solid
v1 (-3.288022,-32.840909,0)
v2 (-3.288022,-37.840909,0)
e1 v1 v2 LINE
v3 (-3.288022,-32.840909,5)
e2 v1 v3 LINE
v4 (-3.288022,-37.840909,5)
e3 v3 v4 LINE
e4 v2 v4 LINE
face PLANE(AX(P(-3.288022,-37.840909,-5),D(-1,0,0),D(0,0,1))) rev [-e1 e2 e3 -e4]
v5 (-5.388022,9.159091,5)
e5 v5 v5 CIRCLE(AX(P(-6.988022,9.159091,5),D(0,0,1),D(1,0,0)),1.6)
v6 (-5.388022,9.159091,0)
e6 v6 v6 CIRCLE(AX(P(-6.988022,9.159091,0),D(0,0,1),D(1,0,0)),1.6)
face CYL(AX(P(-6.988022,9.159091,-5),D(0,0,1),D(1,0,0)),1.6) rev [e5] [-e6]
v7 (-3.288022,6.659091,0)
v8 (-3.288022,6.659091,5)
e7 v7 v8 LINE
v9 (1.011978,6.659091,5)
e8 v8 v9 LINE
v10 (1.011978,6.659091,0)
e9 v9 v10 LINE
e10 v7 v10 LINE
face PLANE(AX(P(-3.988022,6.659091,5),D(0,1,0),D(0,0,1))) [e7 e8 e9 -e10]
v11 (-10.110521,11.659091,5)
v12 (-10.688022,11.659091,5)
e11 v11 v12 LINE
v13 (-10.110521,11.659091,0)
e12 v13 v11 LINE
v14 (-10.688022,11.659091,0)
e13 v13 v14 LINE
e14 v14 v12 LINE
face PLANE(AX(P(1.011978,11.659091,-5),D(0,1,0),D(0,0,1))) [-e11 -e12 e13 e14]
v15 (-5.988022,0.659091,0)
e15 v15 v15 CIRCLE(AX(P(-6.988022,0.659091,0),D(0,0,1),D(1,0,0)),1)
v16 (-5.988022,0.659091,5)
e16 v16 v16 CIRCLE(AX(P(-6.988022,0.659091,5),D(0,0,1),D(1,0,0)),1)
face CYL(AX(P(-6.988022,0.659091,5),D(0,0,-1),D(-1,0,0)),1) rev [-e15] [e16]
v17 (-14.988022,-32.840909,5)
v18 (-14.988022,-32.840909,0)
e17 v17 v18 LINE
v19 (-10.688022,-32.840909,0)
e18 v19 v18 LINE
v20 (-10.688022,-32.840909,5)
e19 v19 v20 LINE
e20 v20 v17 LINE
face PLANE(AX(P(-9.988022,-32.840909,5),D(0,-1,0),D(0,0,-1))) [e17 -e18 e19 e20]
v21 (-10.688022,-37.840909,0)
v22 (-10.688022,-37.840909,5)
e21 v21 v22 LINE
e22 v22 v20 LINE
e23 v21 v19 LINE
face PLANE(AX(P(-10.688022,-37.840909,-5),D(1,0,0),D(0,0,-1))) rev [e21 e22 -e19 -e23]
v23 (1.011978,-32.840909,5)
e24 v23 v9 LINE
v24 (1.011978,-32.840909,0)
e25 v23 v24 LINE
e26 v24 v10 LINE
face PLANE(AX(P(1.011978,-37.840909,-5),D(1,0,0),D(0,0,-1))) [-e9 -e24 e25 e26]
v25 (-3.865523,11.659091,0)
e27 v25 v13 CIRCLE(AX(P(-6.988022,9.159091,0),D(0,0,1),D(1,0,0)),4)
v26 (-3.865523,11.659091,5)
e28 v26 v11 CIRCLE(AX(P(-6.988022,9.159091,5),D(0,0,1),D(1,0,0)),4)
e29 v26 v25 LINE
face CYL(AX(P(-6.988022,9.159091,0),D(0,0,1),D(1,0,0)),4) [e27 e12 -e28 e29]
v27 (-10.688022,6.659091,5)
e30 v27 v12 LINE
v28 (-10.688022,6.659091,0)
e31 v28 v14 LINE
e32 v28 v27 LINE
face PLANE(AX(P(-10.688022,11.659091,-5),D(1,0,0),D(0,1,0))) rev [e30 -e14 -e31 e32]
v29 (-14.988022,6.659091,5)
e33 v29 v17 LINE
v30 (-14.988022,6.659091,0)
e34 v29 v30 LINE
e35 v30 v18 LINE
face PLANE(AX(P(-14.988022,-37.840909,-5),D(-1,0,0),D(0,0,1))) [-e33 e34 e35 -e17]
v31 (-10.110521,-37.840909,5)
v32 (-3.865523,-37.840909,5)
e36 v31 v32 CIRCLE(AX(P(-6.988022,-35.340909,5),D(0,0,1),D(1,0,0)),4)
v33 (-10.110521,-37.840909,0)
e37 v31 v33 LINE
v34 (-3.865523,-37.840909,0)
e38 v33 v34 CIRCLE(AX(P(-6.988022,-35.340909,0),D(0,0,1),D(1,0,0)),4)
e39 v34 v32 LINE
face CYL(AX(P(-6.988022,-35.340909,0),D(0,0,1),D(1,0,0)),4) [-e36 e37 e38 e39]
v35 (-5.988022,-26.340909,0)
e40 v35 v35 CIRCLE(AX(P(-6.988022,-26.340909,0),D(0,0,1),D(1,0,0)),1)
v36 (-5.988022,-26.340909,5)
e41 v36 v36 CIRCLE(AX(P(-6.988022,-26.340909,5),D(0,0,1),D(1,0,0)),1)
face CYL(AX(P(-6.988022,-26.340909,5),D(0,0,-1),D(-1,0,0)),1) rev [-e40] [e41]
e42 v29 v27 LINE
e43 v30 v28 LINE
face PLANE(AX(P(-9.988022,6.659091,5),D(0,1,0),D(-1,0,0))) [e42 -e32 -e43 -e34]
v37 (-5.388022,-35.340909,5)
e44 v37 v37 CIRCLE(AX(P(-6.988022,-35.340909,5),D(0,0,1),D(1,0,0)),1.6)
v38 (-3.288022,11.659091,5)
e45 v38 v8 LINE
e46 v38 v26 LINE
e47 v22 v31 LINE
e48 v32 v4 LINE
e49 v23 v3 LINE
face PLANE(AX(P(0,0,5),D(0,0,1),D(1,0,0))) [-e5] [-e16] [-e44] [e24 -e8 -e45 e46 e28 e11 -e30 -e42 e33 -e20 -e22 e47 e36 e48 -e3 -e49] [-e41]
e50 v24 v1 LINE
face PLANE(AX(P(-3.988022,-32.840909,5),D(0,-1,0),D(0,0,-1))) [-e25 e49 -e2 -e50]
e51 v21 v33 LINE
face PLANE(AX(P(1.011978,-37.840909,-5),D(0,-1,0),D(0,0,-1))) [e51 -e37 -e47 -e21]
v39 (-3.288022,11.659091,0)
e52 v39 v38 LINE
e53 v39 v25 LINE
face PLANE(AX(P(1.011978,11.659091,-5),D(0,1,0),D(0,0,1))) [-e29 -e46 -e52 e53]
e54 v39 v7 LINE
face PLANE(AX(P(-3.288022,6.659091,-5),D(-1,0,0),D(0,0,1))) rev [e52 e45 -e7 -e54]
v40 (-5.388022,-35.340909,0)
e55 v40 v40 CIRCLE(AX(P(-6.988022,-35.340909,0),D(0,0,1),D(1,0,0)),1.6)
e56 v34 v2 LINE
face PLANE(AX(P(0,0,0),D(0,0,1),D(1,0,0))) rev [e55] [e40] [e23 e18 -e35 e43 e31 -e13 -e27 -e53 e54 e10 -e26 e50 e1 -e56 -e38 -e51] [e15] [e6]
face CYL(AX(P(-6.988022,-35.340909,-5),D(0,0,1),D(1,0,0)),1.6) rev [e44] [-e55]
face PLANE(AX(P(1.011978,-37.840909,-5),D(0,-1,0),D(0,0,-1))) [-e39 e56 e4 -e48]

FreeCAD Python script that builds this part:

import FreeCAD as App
import Part
import Sketcher


def add_polygon(sketch, points):
    """Adds a closed chain of lines whose ends are joined by coincident constraints."""
    first, n = sketch.GeometryCount, len(points)
    for a, b in zip(points, points[1:] + points[:1]):
        sketch.addGeometry(Part.LineSegment(App.Vector(*a, 0), App.Vector(*b, 0)), False)
    for i in range(n):
        sketch.addConstraint(Sketcher.Constraint("Coincident", first + i, 2, first + (i + 1) % n, 1))

doc = App.newDocument("Part")
body = doc.addObject("PartDesign::Body", "Body")

# Sketch on XY plane
sketch1 = body.newObject("Sketcher::SketchObject", "Sketch")
sketch1.AttachmentSupport = (doc.getObject("XY_Plane"), [""])
sketch1.MapMode = "FlatFace"
add_polygon(sketch1, [(-18, 14.7), (-18, -40.8), (4, -40.8), (4, 14.7)])  # lines 0-3
add_polygon(sketch1, [(-10, -37.8), (-15, -37.8), (-15, -32.8), (-10, -32.8)])  # lines 4-7
sketch1.addGeometry(Part.Circle(App.Vector(-7, -26.3, 0), App.Vector(0, 0, 1), 1), False)  # 8
add_polygon(sketch1, [(1, -37.8), (-4, -37.8), (-4, -32.8), (1, -32.8)])  # lines 9-12
add_polygon(sketch1, [(-10, 6.7), (-15, 6.7), (-15, 11.7), (-10, 11.7)])  # lines 13-16
sketch1.addGeometry(Part.Circle(App.Vector(-7, 0.7, 0), App.Vector(0, 0, 1), 1), False)  # 17
add_polygon(sketch1, [(1, 6.7), (-4, 6.7), (-4, 11.7), (1, 11.7)])  # lines 18-21
sketch1.addConstraint([
    Sketcher.Constraint("Vertical", 0),
    Sketcher.Constraint("Horizontal", 1),
    Sketcher.Constraint("Vertical", 2),
    Sketcher.Constraint("Horizontal", 3),
    Sketcher.Constraint("Horizontal", 4),
    Sketcher.Constraint("Vertical", 5),
    Sketcher.Constraint("Horizontal", 6),
    Sketcher.Constraint("Vertical", 7),
    Sketcher.Constraint("Horizontal", 9),
    Sketcher.Constraint("Vertical", 10),
    Sketcher.Constraint("Horizontal", 11),
    Sketcher.Constraint("Vertical", 12),
    Sketcher.Constraint("Horizontal", 13),
    Sketcher.Constraint("Vertical", 14),
    Sketcher.Constraint("Horizontal", 15),
    Sketcher.Constraint("Vertical", 16),
    Sketcher.Constraint("Horizontal", 18),
    Sketcher.Constraint("Vertical", 19),
    Sketcher.Constraint("Horizontal", 20),
    Sketcher.Constraint("Vertical", 21),
    Sketcher.Constraint("Equal", 8, 17),
    Sketcher.Constraint("Horizontal", 7, 2, 9, 2),
    Sketcher.Constraint("Horizontal", 6, 2, 10, 2),
    Sketcher.Constraint("Horizontal", 16, 2, 18, 2),
    Sketcher.Constraint("Horizontal", 15, 2, 19, 2),
    Sketcher.Constraint("Vertical", 8, 3, 17, 3),
    Sketcher.Constraint("Vertical", 5, 2, 13, 2),
    Sketcher.Constraint("Vertical", 7, 2, 15, 2),
    Sketcher.Constraint("Vertical", 10, 2, 18, 2),
    Sketcher.Constraint("Vertical", 12, 2, 20, 2),
    Sketcher.Constraint("Equal", 6, 9),
    Sketcher.Constraint("Equal", 20, 5),
    Sketcher.Constraint("Equal", 12, 14),
    Sketcher.Constraint("Diameter", 8, 2.0),
    Sketcher.Constraint("DistanceX", 1, 1, 1, 2, 22.0),
    Sketcher.Constraint("DistanceX", 4, 2, 4, 1, 5.0),
    Sketcher.Constraint("DistanceY", 0, 2, 0, 1, 55.5),
    Sketcher.Constraint("DistanceY", 8, 3, 17, 3, 27.0),
    Sketcher.Constraint("DistanceX", 0, 2, 8, 3, 11.0),
    Sketcher.Constraint("DistanceY", 17, 3, 2, 2, 14.0),
    Sketcher.Constraint("DistanceX", 0, 2, 4, 2, 3.0),
    Sketcher.Constraint("DistanceY", 0, 2, 4, 2, 3.0),
    Sketcher.Constraint("DistanceX", 7, 2, 9, 2, 6.0),
    Sketcher.Constraint("DistanceY", 13, 2, 3, 2, 8.0),
    Sketcher.Constraint("DistanceY", 8, 3, -1, 1, 26.340909),
    Sketcher.Constraint("DistanceX", 8, 3, -1, 1, 6.988022),
])
pad1 = body.newObject("PartDesign::Pad", "Pad")
pad1.Profile = sketch1
pad1.Length = 5

# Sketch on XY plane
sketch2 = body.newObject("Sketcher::SketchObject", "Sketch001")
sketch2.AttachmentSupport = (doc.getObject("XY_Plane"), [""])
sketch2.MapMode = "FlatFace"
sketch2.AttachmentOffset = App.Placement(App.Vector(0, 0, 5), App.Rotation())
add_polygon(sketch2, [(-18, 15), (-18, -41), (4, -41), (4, 15)])  # lines 0-3
add_polygon(sketch2, [(1, -38), (-15, -38), (-15, 12), (1, 12)])  # lines 4-7
sketch2.addConstraint([
    Sketcher.Constraint("Vertical", 0),
    Sketcher.Constraint("Horizontal", 1),
    Sketcher.Constraint("Vertical", 2),
    Sketcher.Constraint("Horizontal", 3),
    Sketcher.Constraint("Horizontal", 4),
    Sketcher.Constraint("Vertical", 5),
    Sketcher.Constraint("Horizontal", 6),
    Sketcher.Constraint("Vertical", 7),
    Sketcher.Constraint("DistanceX", 1, 1, 1, 2, 22.0),
    Sketcher.Constraint("DistanceX", 4, 2, 4, 1, 16.0),
    Sketcher.Constraint("DistanceY", 0, 2, 0, 1, 55.5),
    Sketcher.Constraint("DistanceY", 5, 1, 5, 2, 49.5),
    Sketcher.Constraint("DistanceX", 0, 2, 4, 2, 3.0),
    Sketcher.Constraint("DistanceY", 0, 2, 4, 2, 3.0),
    Sketcher.Constraint("DistanceY", 0, 2, -1, 1, 40.840909),
    Sketcher.Constraint("DistanceX", 0, 2, -1, 1, 17.988022),
])
pocket1 = body.newObject("PartDesign::Pocket", "Pocket")
pocket1.Profile = sketch2
pocket1.Length = 10

# Sketch on XY plane
sketch3 = body.newObject("Sketcher::SketchObject", "Sketch002")
sketch3.AttachmentSupport = (doc.getObject("XY_Plane"), [""])
sketch3.MapMode = "FlatFace"
sketch3.AttachmentOffset = App.Placement(App.Vector(0, 0, 5), App.Rotation())
add_polygon(sketch3, [(-4, -32.8), (-4, -37.8), (-3, -37.8), (-3, -32.8)])  # lines 0-3
add_polygon(sketch3, [(-11, -32.8), (-11, -37.8), (-10, -37.8), (-10, -32.8)])  # lines 4-7
add_polygon(sketch3, [(-4, 11.7), (-4, 6.7), (-3, 6.7), (-3, 11.7)])  # lines 8-11
add_polygon(sketch3, [(-11, 11.7), (-11, 6.7), (-10, 6.7), (-10, 11.7)])  # lines 12-15
sketch3.addConstraint([
    Sketcher.Constraint("Vertical", 0),
    Sketcher.Constraint("Horizontal", 1),
    Sketcher.Constraint("Vertical", 2),
    Sketcher.Constraint("Horizontal", 3),
    Sketcher.Constraint("Vertical", 4),
    Sketcher.Constraint("Horizontal", 5),
    Sketcher.Constraint("Vertical", 6),
    Sketcher.Constraint("Horizontal", 7),
    Sketcher.Constraint("Vertical", 8),
    Sketcher.Constraint("Horizontal", 9),
    Sketcher.Constraint("Vertical", 10),
    Sketcher.Constraint("Horizontal", 11),
    Sketcher.Constraint("Vertical", 12),
    Sketcher.Constraint("Horizontal", 13),
    Sketcher.Constraint("Vertical", 14),
    Sketcher.Constraint("Horizontal", 15),
    Sketcher.Constraint("Horizontal", 1, 2, 4, 2),
    Sketcher.Constraint("Horizontal", 3, 2, 6, 2),
    Sketcher.Constraint("Horizontal", 9, 2, 12, 2),
    Sketcher.Constraint("Horizontal", 11, 2, 14, 2),
    Sketcher.Constraint("Vertical", 3, 2, 8, 2),
    Sketcher.Constraint("Vertical", 2, 2, 9, 2),
    Sketcher.Constraint("Vertical", 7, 2, 12, 2),
    Sketcher.Constraint("Vertical", 6, 2, 13, 2),
    Sketcher.Constraint("Equal", 3, 5),
    Sketcher.Constraint("Equal", 6, 8),
    Sketcher.Constraint("DistanceX", 1, 1, 1, 2, 1.0),
    Sketcher.Constraint("DistanceY", 0, 2, 0, 1, 5.0),
    Sketcher.Constraint("DistanceX", 4, 2, 0, 2, 7.0),
    Sketcher.Constraint("DistanceY", 3, 2, 8, 2, 39.5),
    Sketcher.Constraint("DistanceY", 0, 2, -1, 1, 37.840909),
    Sketcher.Constraint("DistanceX", 0, 2, -1, 1, 3.988022),
])
pad2 = body.newObject("PartDesign::Pad", "Pad001")
pad2.Profile = sketch3
pad2.Length = 5
pad2.Reversed = True

# Sketch on XY plane
sketch4 = body.newObject("Sketcher::SketchObject", "Sketch003")
sketch4.AttachmentSupport = (doc.getObject("XY_Plane"), [""])
sketch4.MapMode = "FlatFace"
sketch4.AttachmentOffset = App.Placement(App.Vector(0, 0, 5), App.Rotation())
sketch4.addGeometry([
    Part.Circle(App.Vector(-7, -35.3, 0), App.Vector(0, 0, 1), 1.6),
    Part.Circle(App.Vector(-7, 9.2, 0), App.Vector(0, 0, 1), 1.6),
], False)
sketch4.addConstraint([
    Sketcher.Constraint("Equal", 0, 1),
    Sketcher.Constraint("Vertical", 0, 3, 1, 3),
    Sketcher.Constraint("Diameter", 0, 3.2),
    Sketcher.Constraint("DistanceY", 0, 3, 1, 3, 44.5),
    Sketcher.Constraint("DistanceY", 0, 3, -1, 1, 35.340909),
    Sketcher.Constraint("DistanceX", 0, 3, -1, 1, 6.988022),
])
pocket2 = body.newObject("PartDesign::Pocket", "Pocket001")
pocket2.Profile = sketch4
pocket2.Length = 10

# Sketch on XY plane
sketch5 = body.newObject("Sketcher::SketchObject", "Sketch004")
sketch5.AttachmentSupport = (doc.getObject("XY_Plane"), [""])
sketch5.MapMode = "FlatFace"
sketch5.AttachmentOffset = App.Placement(App.Vector(0, 0, 5), App.Rotation())
sketch5.addGeometry([
    Part.Circle(App.Vector(-7, -35.3, 0), App.Vector(0, 0, 1), 4),
    Part.Circle(App.Vector(-7, -35.3, 0), App.Vector(0, 0, 1), 1.6),
    Part.Circle(App.Vector(-7, 9.2, 0), App.Vector(0, 0, 1), 4),
    Part.Circle(App.Vector(-7, 9.2, 0), App.Vector(0, 0, 1), 1.6),
], False)
sketch5.addConstraint([
    Sketcher.Constraint("Coincident", 1, 3, 0, 3),
    Sketcher.Constraint("Coincident", 3, 3, 2, 3),
    Sketcher.Constraint("Equal", 0, 2),
    Sketcher.Constraint("Equal", 1, 3),
    Sketcher.Constraint("Vertical", 1, 3, 2, 3),
    Sketcher.Constraint("Diameter", 0, 8.0),
    Sketcher.Constraint("Diameter", 1, 3.2),
    Sketcher.Constraint("DistanceY", 0, 3, 2, 3, 44.5),
    Sketcher.Constraint("DistanceY", 0, 3, -1, 1, 35.340909),
    Sketcher.Constraint("DistanceX", 0, 3, -1, 1, 6.988022),
])
pad3 = body.newObject("PartDesign::Pad", "Pad002")
pad3.Profile = sketch5
pad3.Length = 5
pad3.Reversed = True

# Sketch on XY plane
sketch6 = body.newObject("Sketcher::SketchObject", "Sketch005")
sketch6.AttachmentSupport = (doc.getObject("XY_Plane"), [""])
sketch6.MapMode = "FlatFace"
sketch6.AttachmentOffset = App.Placement(App.Vector(0, 0, 5), App.Rotation())
add_polygon(sketch6, [(-3.29, -32.84), (-3.29, -37.84), (-2.99, -37.84), (-2.99, -32.84)])  # lines 0-3
add_polygon(sketch6, [(-10.99, -32.84), (-10.99, -37.84), (-10.69, -37.84), (-10.69, -32.84)])  # lines 4-7
add_polygon(sketch6, [(-3.29, 11.66), (-3.29, 6.66), (-2.99, 6.66), (-2.99, 11.66)])  # lines 8-11
add_polygon(sketch6, [(-10.99, 11.66), (-10.99, 6.66), (-10.69, 6.66), (-10.69, 11.66)])  # lines 12-15
sketch6.addConstraint([
    Sketcher.Constraint("Vertical", 0),
    Sketcher.Constraint("Horizontal", 1),
    Sketcher.Constraint("Vertical", 2),
    Sketcher.Constraint("Horizontal", 3),
    Sketcher.Constraint("Vertical", 4),
    Sketcher.Constraint("Horizontal", 5),
    Sketcher.Constraint("Vertical", 6),
    Sketcher.Constraint("Horizontal", 7),
    Sketcher.Constraint("Vertical", 8),
    Sketcher.Constraint("Horizontal", 9),
    Sketcher.Constraint("Vertical", 10),
    Sketcher.Constraint("Horizontal", 11),
    Sketcher.Constraint("Vertical", 12),
    Sketcher.Constraint("Horizontal", 13),
    Sketcher.Constraint("Vertical", 14),
    Sketcher.Constraint("Horizontal", 15),
    Sketcher.Constraint("Horizontal", 1, 2, 4, 2),
    Sketcher.Constraint("Horizontal", 3, 2, 6, 2),
    Sketcher.Constraint("Horizontal", 9, 2, 12, 2),
    Sketcher.Constraint("Horizontal", 11, 2, 14, 2),
    Sketcher.Constraint("Vertical", 3, 2, 8, 2),
    Sketcher.Constraint("Vertical", 2, 2, 9, 2),
    Sketcher.Constraint("Vertical", 7, 2, 12, 2),
    Sketcher.Constraint("Vertical", 6, 2, 13, 2),
    Sketcher.Constraint("Equal", 3, 5),
    Sketcher.Constraint("Equal", 6, 8),
    Sketcher.Constraint("DistanceY", 0, 2, 0, 1, 5.0),
    Sketcher.Constraint("DistanceX", 1, 1, 1, 2, 0.3),
    Sketcher.Constraint("DistanceX", 4, 2, 1, 2, 8.0),
    Sketcher.Constraint("DistanceY", 3, 2, 8, 2, 39.5),
    Sketcher.Constraint("DistanceY", 0, 2, -1, 1, 37.840909),
    Sketcher.Constraint("DistanceX", 0, 2, -1, 1, 3.288022),
])
pocket3 = body.newObject("PartDesign::Pocket", "Pocket002")
pocket3.Profile = sketch6
pocket3.Length = 10

doc.recompute()
